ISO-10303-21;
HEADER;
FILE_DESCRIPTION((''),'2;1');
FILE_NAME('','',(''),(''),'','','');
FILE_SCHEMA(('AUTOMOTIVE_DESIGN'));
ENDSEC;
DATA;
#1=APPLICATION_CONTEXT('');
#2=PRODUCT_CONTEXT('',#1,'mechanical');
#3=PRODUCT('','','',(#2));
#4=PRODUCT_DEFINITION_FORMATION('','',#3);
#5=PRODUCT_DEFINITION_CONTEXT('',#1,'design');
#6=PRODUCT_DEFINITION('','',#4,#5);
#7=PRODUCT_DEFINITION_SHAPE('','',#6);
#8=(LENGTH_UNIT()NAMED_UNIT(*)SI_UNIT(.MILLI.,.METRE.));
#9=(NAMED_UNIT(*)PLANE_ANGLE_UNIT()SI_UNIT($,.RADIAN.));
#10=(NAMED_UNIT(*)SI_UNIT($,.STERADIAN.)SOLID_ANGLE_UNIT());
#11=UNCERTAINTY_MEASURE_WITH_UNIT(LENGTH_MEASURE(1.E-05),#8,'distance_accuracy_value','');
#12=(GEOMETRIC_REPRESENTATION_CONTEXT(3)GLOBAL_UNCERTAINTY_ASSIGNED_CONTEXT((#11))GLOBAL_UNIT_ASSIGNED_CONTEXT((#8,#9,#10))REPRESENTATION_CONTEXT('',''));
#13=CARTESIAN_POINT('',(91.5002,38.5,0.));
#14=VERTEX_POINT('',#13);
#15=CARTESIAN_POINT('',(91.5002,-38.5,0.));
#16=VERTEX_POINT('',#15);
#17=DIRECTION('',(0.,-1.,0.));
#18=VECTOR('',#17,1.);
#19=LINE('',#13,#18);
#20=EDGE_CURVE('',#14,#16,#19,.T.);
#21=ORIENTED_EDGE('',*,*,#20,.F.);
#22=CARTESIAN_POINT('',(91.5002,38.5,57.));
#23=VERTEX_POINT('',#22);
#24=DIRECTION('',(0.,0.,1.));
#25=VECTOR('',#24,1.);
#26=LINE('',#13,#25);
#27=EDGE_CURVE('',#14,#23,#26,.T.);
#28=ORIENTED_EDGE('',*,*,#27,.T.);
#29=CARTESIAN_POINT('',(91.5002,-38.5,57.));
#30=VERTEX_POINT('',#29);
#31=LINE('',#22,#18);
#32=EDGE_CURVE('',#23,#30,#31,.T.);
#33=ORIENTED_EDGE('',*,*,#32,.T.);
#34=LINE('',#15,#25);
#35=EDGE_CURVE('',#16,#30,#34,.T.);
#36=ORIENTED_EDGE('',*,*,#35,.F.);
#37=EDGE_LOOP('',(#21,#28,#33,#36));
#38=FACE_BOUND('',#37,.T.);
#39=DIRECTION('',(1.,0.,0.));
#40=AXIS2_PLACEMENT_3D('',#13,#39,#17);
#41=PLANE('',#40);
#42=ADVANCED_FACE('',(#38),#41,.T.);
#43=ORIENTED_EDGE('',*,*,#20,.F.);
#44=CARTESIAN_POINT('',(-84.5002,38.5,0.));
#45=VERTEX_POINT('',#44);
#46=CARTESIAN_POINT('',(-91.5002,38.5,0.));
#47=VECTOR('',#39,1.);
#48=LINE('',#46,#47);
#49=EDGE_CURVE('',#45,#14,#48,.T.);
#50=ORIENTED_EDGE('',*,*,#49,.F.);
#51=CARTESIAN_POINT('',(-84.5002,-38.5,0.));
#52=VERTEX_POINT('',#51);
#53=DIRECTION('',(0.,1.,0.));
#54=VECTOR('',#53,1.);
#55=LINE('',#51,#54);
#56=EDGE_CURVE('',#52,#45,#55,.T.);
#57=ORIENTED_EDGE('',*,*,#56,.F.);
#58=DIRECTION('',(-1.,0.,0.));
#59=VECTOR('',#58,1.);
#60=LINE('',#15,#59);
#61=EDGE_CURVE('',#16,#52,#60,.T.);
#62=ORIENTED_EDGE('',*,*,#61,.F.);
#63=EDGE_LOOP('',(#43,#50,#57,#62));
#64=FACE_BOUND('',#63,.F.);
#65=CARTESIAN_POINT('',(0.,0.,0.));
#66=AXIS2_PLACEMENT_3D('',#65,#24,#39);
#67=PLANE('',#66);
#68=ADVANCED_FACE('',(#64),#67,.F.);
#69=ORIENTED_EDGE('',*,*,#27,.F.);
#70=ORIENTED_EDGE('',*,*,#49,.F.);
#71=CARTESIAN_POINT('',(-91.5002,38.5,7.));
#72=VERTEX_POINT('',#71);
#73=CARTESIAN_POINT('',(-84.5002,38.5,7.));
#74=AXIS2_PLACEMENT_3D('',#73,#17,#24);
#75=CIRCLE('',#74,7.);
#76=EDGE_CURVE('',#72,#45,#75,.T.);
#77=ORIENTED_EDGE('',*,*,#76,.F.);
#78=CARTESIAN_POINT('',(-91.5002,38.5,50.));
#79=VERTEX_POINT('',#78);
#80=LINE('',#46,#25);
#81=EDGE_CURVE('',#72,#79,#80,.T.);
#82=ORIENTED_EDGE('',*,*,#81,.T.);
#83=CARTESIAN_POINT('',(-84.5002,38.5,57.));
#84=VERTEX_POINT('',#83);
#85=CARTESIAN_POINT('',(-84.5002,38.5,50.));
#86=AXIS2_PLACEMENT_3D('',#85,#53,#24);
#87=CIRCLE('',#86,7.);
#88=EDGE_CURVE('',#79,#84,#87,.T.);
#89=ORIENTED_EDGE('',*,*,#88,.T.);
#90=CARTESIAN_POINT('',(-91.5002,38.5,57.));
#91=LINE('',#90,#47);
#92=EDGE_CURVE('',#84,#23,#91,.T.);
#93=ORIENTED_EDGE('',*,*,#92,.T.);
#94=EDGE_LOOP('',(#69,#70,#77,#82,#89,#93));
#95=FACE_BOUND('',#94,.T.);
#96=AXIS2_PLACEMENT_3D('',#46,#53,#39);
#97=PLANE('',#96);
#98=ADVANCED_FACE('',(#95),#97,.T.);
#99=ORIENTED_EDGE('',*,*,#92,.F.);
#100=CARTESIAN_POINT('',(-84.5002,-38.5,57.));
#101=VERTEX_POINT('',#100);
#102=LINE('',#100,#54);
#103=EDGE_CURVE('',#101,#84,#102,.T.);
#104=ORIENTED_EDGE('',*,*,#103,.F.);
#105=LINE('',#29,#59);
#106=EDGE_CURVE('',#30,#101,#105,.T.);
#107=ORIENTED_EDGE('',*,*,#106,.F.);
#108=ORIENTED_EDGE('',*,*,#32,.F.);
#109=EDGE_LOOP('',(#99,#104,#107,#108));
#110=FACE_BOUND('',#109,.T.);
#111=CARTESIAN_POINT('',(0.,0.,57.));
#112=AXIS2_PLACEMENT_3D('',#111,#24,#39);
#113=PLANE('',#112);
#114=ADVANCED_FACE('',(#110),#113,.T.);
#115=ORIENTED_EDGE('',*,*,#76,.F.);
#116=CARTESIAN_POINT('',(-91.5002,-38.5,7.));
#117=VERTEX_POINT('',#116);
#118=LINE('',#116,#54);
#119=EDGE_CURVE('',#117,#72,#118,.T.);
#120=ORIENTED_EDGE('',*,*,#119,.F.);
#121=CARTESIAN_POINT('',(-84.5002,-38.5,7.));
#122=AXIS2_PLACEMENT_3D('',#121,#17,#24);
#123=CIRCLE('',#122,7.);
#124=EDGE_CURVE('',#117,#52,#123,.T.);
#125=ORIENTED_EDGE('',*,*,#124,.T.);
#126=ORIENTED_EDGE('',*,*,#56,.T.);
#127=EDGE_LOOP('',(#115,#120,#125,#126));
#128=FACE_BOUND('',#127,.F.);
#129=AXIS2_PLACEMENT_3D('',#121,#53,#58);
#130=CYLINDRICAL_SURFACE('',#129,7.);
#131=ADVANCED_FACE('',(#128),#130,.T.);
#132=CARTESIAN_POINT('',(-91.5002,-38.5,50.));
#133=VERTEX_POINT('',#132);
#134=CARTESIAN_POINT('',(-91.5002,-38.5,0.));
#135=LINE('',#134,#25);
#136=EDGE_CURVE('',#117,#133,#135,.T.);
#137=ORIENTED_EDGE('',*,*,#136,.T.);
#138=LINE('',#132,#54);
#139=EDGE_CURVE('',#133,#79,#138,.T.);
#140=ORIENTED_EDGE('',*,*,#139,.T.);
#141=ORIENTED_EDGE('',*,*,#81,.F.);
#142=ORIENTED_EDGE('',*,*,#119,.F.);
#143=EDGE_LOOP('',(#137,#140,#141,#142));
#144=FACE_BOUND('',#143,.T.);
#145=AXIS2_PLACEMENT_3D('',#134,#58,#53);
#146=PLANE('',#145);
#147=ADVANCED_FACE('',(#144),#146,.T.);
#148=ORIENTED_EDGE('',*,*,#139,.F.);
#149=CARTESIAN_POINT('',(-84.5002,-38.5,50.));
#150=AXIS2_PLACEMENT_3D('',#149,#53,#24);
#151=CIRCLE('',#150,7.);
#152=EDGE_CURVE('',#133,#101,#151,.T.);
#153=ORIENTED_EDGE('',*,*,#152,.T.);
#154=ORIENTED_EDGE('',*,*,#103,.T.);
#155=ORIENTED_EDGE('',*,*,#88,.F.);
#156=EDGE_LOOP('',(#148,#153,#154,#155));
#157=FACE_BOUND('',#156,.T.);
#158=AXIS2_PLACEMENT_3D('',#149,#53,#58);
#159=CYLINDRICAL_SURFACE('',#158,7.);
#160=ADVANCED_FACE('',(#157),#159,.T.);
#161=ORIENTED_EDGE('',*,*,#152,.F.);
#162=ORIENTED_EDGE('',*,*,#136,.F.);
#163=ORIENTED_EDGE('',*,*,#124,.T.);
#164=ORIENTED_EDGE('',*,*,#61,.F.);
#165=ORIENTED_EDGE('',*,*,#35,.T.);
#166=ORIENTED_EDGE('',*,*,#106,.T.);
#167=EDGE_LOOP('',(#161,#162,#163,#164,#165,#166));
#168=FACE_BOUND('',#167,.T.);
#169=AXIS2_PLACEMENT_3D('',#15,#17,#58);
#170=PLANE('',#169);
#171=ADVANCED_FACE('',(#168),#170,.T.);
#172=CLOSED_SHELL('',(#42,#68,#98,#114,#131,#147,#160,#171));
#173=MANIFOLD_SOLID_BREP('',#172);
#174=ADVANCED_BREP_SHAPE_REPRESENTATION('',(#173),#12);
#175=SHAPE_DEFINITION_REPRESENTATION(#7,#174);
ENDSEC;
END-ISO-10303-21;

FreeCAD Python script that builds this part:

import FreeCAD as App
import Part
import Sketcher

V = App.Vector
Q = App.Units.Quantity


def edges_at(feature, points):
    """Names of the edges that pass closest to the given points."""
    edges = feature.Shape.Edges
    near = lambda p: min(range(len(edges)), key=lambda i: edges[i].distToShape(Part.Vertex(*p))[0])
    return sorted({f"Edge{near(p) + 1}" for p in points})


def add_polygon(sketch, points):
    """Adds a closed chain of lines whose ends are joined by coincident constraints."""
    first, n = sketch.GeometryCount, len(points)
    for a, b in zip(points, points[1:] + points[:1]):
        sketch.addGeometry(Part.LineSegment(App.Vector(*a, 0), App.Vector(*b, 0)), False)
    for i in range(n):
        sketch.addConstraint(Sketcher.Constraint("Coincident", first + i, 2, first + (i + 1) % n, 1))

doc = App.newDocument("Part")
body = doc.addObject("PartDesign::Body", "Body")

# Sketch on XY plane
sketch1 = body.newObject("Sketcher::SketchObject", "Sketch")
sketch1.AttachmentSupport = (doc.getObject("XY_Plane"), [""])
sketch1.MapMode = "FlatFace"
add_polygon(sketch1, [(91.5002, 38.5), (-91.5002, 38.5), (-91.5002, -38.5), (91.5002, -38.5)])  # lines 0-3
sketch1.addConstraint(Sketcher.Constraint("Horizontal", 0))
sketch1.addConstraint(Sketcher.Constraint("Vertical", 1))
sketch1.addConstraint(Sketcher.Constraint("Horizontal", 2))
sketch1.addConstraint(Sketcher.Constraint("Vertical", 3))
sketch1.addConstraint(Sketcher.Constraint("Symmetric", 0, 2, 2, 2, -1, 1))
sketch1.addConstraint(Sketcher.Constraint("DistanceY", 1, 2, 1, 1, Q("77 mm")))
sketch1.addConstraint(Sketcher.Constraint("DistanceX", 0, 2, 0, 1, Q("183.0004 mm")))
pad1 = body.newObject("PartDesign::Pad", "Pad")
pad1.Profile = sketch1
pad1.Length = 57
doc.recompute()

fillet = body.newObject("PartDesign::Fillet", "Fillet")
fillet.Base = (pad1, edges_at(pad1, [(-91.5, 0, 57), (-91.5, 0, 0)]))
fillet.Radius = 7

doc.recompute()
